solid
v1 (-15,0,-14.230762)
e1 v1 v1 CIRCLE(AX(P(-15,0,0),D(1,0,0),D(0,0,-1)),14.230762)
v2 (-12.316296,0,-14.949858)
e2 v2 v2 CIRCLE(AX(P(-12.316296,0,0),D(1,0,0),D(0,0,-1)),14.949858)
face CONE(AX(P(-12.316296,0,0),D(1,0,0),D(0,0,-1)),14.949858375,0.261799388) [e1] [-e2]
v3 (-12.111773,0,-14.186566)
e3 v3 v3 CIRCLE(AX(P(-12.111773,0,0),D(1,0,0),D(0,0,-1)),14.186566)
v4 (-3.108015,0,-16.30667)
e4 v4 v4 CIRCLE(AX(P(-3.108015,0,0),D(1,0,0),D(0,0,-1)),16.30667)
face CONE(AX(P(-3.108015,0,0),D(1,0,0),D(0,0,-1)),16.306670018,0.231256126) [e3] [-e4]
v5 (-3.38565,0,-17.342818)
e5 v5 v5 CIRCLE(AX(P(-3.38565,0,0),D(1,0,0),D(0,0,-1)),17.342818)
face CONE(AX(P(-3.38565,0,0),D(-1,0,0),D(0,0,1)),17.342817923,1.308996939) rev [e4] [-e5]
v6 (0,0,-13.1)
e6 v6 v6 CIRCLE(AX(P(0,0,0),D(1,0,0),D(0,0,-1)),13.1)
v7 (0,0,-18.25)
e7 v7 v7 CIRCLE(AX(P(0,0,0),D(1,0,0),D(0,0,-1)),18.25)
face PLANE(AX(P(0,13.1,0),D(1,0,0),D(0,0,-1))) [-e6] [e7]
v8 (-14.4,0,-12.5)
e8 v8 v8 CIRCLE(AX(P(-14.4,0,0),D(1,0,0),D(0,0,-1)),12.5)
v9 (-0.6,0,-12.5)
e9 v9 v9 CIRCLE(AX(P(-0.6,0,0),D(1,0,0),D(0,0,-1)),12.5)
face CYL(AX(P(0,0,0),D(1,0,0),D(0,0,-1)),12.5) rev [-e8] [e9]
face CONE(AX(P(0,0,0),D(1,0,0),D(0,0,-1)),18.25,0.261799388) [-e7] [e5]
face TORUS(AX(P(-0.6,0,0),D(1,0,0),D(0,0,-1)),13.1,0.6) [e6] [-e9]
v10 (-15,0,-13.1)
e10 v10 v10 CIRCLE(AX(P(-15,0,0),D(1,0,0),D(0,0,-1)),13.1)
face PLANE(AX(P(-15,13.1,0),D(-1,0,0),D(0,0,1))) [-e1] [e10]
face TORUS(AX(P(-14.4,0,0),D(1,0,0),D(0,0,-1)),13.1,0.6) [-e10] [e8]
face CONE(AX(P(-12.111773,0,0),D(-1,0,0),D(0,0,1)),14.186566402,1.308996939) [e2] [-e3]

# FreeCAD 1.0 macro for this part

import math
import FreeCAD as App
import Part
import Sketcher
Q = App.Units.Quantity

doc = App.newDocument("Part")
params = doc.addObject("Spreadsheet::Sheet", "Params")
for row, (alias, value) in enumerate([
    ("sketch1_radius", "0.6 mm"),
    ("sketch1_width", "13.8 mm"),
    ("sketch1_height", "5.15 mm"),
    ("sketch1_length", "9.25 mm"),
    ("revolution_angle", "360 deg"),
], start=1):
    params.set(f"A{row}", alias)
    params.set(f"B{row}", "=" + value)
    params.setAlias(f"B{row}", alias)

body = doc.addObject("PartDesign::Body", "Body")

sketch1 = body.newObject("Sketcher::SketchObject", "Sketch")
sketch1.AttachmentSupport = (doc.getObject("XY_Plane"), [""])
sketch1.MapMode = "FlatFace"
sketch1.addGeometry(Part.LineSegment(App.Vector(0, 13.1, 0), App.Vector(0, 18.2, 0)), False)
sketch1.addGeometry(Part.LineSegment(App.Vector(0, 18.2, 0), App.Vector(-3.4, 17.3, 0)), False)
sketch1.addGeometry(Part.LineSegment(App.Vector(-3.4, 17.3, 0), App.Vector(-3.1, 16.3, 0)), False)
sketch1.addGeometry(Part.LineSegment(App.Vector(-3.1, 16.3, 0), App.Vector(-12.1, 14.2, 0)), False)
sketch1.addGeometry(Part.LineSegment(App.Vector(-12.1, 14.2, 0), App.Vector(-12.3, 14.9, 0)), False)
sketch1.addGeometry(Part.LineSegment(App.Vector(-12.3, 14.9, 0), App.Vector(-15, 14.2, 0)), False)
sketch1.addGeometry(Part.LineSegment(App.Vector(-15, 14.2, 0), App.Vector(-15, 13.1, 0)), False)
sketch1.addGeometry(Part.ArcOfCircle(Part.Circle(App.Vector(-14.4, 13.1, 0), App.Vector(0, 0, 1), 0.6), math.radians(180), math.radians(270)), False)
sketch1.addGeometry(Part.LineSegment(App.Vector(-14.4, 12.5, 0), App.Vector(-0.6, 12.5, 0)), False)
sketch1.addGeometry(Part.ArcOfCircle(Part.Circle(App.Vector(-0.6, 13.1, 0), App.Vector(0, 0, 1), 0.6), math.radians(-90), math.radians(0)), False)
sketch1.addConstraint(Sketcher.Constraint("Coincident", 0, 2, 1, 1))
sketch1.addConstraint(Sketcher.Constraint("Coincident", 1, 2, 2, 1))
sketch1.addConstraint(Sketcher.Constraint("Coincident", 2, 2, 3, 1))
sketch1.addConstraint(Sketcher.Constraint("Coincident", 3, 2, 4, 1))
sketch1.addConstraint(Sketcher.Constraint("Coincident", 4, 2, 5, 1))
sketch1.addConstraint(Sketcher.Constraint("Coincident", 5, 2, 6, 1))
sketch1.addConstraint(Sketcher.Constraint("Tangent", 6, 2, 7, 1))
sketch1.addConstraint(Sketcher.Constraint("Tangent", 7, 2, 8, 1))
sketch1.addConstraint(Sketcher.Constraint("Tangent", 8, 2, 9, 1))
sketch1.addConstraint(Sketcher.Constraint("Tangent", 9, 2, 0, 1))
sketch1.addConstraint(Sketcher.Constraint("Vertical", 0))
sketch1.addConstraint(Sketcher.Constraint("Vertical", 6))
sketch1.addConstraint(Sketcher.Constraint("Horizontal", 8))
sketch1.addConstraint(Sketcher.Constraint("Equal", 7, 9))
sketch1.addConstraint(Sketcher.Constraint("PointOnObject", 0, 2, -2))
sketch1.addConstraint(Sketcher.Constraint("Perpendicular", 1, 2))
sketch1.addConstraint(Sketcher.Constraint("Parallel", 2, 4))
sketch1.addConstraint(Sketcher.Constraint("Perpendicular", 4, 5))
sketch1.addConstraint(Sketcher.Constraint("Radius", 7, 0.6))
sketch1.addConstraint(Sketcher.Constraint("Angle", 1, Q("-165 deg")))
sketch1.addConstraint(Sketcher.Constraint("DistanceX", 8, 1, 8, 2, 13.8))
sketch1.addConstraint(Sketcher.Constraint("DistanceY", 0, 1, 0, 2, 5.15))
sketch1.addConstraint(Sketcher.Constraint("DistanceY", -1, 1, 7, 3, 13.1))
sketch1.addConstraint(Sketcher.Constraint("Angle", 3, Q("-166.75 deg")))
sketch1.addConstraint(Sketcher.Constraint("Distance", 3, 9.25))
sketch1.addConstraint(Sketcher.Constraint("Distance", 2, 1.072699))
sketch1.addConstraint(Sketcher.Constraint("DistanceY", 6, 2, 6, 1, 1.130762))
sketch1.addConstraint(Sketcher.Constraint("DistanceX", 1, 2, -1, 1, 3.38565))
sketch1.setExpression("Constraints[18]", "Params.sketch1_radius")
sketch1.setExpression("Constraints[20]", "Params.sketch1_width")
sketch1.setExpression("Constraints[21]", "Params.sketch1_height")
sketch1.setExpression("Constraints[24]", "Params.sketch1_length")
revolution = body.newObject("PartDesign::Revolution", "Revolution")
revolution.Profile = sketch1
revolution.ReferenceAxis = (sketch1, ["H_Axis"])
revolution.setExpression("Angle", "Params.revolution_angle")

doc.recompute()
